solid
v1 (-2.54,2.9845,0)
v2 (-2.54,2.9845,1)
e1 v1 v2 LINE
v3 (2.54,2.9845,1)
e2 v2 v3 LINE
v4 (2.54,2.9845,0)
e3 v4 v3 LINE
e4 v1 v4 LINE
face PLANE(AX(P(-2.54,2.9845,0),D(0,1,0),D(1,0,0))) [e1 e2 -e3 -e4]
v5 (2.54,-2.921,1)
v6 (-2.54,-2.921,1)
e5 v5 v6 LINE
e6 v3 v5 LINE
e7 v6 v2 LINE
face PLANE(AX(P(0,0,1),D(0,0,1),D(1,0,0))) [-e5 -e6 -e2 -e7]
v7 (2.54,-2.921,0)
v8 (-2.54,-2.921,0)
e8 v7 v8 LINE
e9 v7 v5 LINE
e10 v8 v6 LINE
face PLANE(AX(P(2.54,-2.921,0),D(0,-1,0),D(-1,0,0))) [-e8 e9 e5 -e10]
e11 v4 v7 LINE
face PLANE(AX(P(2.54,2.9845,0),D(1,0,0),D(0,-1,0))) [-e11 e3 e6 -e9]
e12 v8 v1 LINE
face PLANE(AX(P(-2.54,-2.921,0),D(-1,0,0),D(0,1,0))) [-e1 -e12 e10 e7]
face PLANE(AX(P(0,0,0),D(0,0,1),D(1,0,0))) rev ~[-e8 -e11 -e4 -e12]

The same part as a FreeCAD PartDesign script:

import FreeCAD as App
import Part
import Sketcher


def add_polygon(sketch, points):
    """Adds a closed chain of lines whose ends are joined by coincident constraints."""
    first, n = sketch.GeometryCount, len(points)
    for a, b in zip(points, points[1:] + points[:1]):
        sketch.addGeometry(Part.LineSegment(App.Vector(*a, 0), App.Vector(*b, 0)), False)
    for i in range(n):
        sketch.addConstraint(Sketcher.Constraint("Coincident", first + i, 2, first + (i + 1) % n, 1))

doc = App.newDocument("Part")
body = doc.addObject("PartDesign::Body", "Body")

sketch1 = body.newObject("Sketcher::SketchObject", "Sketch")
sketch1.AttachmentSupport = (doc.getObject("XY_Plane"), [""])
sketch1.MapMode = "FlatFace"
add_polygon(sketch1, [(3, 3), (-3, 3), (-3, -3), (3, -3)])
sketch1.addConstraint([
    Sketcher.Constraint("Horizontal", 0),
    Sketcher.Constraint("Vertical", 1),
    Sketcher.Constraint("Horizontal", 2),
    Sketcher.Constraint("Vertical", 3),
    Sketcher.Constraint("DistanceX", 0, 2, 0, 1, 5.08),
    Sketcher.Constraint("DistanceX", 0, 2, -1, 1, 2.54),
    Sketcher.Constraint("DistanceY", 1, 2, 1, 1, 5.9055),
    Sketcher.Constraint("DistanceY", 1, 2, -1, 1, 2.921),
])
pad1 = body.newObject("PartDesign::Pad", "Pad")
pad1.Profile = sketch1
pad1.Length = 1

doc.recompute()
